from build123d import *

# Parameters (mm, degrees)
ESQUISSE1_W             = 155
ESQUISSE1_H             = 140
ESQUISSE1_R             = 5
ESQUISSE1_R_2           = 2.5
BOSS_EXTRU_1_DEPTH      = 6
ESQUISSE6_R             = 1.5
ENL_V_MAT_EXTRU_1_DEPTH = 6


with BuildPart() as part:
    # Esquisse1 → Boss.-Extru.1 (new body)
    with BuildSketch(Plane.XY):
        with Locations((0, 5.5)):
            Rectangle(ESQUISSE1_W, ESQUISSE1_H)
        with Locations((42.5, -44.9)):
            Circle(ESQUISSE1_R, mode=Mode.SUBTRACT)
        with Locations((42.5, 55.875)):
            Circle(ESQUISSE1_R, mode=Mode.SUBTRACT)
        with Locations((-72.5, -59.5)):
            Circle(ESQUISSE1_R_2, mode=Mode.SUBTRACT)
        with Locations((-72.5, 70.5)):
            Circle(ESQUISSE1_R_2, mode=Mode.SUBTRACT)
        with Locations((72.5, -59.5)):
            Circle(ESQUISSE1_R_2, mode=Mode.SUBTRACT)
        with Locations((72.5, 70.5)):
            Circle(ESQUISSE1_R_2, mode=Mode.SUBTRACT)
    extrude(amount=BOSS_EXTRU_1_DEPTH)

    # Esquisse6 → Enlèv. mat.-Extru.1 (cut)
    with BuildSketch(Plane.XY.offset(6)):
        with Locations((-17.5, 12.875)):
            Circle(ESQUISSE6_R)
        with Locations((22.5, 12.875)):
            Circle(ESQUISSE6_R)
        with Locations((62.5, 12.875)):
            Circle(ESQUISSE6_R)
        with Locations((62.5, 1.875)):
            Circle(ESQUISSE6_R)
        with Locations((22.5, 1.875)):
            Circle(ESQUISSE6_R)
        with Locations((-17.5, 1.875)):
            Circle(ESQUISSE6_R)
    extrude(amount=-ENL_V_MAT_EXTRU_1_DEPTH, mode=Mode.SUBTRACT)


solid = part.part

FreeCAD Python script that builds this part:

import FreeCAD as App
import Part
import Sketcher
from FreeCAD import Vector

doc = App.newDocument("Part")
body = doc.addObject("PartDesign::Body", "Body")

sketch1 = body.newObject("Sketcher::SketchObject", "Sketch")
sketch1.AttachmentSupport = (doc.getObject("XY_Plane"), [""])
sketch1.MapMode = "FlatFace"
sketch1.addGeometry([
    Part.LineSegment(Vector(-77.5, 75.5, 0), Vector(-77.5, -64.5, 0)),
    Part.LineSegment(Vector(-77.5, -64.5, 0), Vector(77.5, -64.5, 0)),
    Part.LineSegment(Vector(77.5, -64.5, 0), Vector(77.5, 75.5, 0)),
    Part.LineSegment(Vector(77.5, 75.5, 0), Vector(-77.5, 75.5, 0)),
    Part.Circle(Vector(-72.5, -59.5, 0), Vector(0, 0, 1), 2.5),
    Part.Circle(Vector(72.5, -59.5, 0), Vector(0, 0, 1), 2.5),
    Part.Circle(Vector(42.5, -44.9, 0), Vector(0, 0, 1), 5),
    Part.Circle(Vector(-72.5, 70.5, 0), Vector(0, 0, 1), 2.5),
    Part.Circle(Vector(42.5, 55.9, 0), Vector(0, 0, 1), 5),
    Part.Circle(Vector(72.5, 70.5, 0), Vector(0, 0, 1), 2.5),
], False)
sketch1.addConstraint([
    Sketcher.Constraint("Coincident", 0, 2, 1, 1),
    Sketcher.Constraint("Coincident", 1, 2, 2, 1),
    Sketcher.Constraint("Coincident", 2, 2, 3, 1),
    Sketcher.Constraint("Coincident", 3, 2, 0, 1),
    Sketcher.Constraint("Vertical", 0),
    Sketcher.Constraint("Horizontal", 1),
    Sketcher.Constraint("Vertical", 2),
    Sketcher.Constraint("Horizontal", 3),
    Sketcher.Constraint("Equal", 4, 5),
    Sketcher.Constraint("Equal", 5, 7),
    Sketcher.Constraint("Equal", 6, 8),
    Sketcher.Constraint("Equal", 7, 9),
    Sketcher.Constraint("Symmetric", 4, 3, 5, 3, -2),
    Sketcher.Constraint("Symmetric", 7, 3, 9, 3, -2),
    Sketcher.Constraint("Vertical", 4, 3, 7, 3),
    Sketcher.Constraint("Vertical", 6, 3, 8, 3),
    Sketcher.Constraint("Diameter", 4, 5.0),
    Sketcher.Constraint("Diameter", 6, 10.0),
    Sketcher.Constraint("DistanceX", 1, 1, 1, 2, 155.0),
    Sketcher.Constraint("DistanceY", 0, 2, 0, 1, 140.0),
    Sketcher.Constraint("DistanceX", 4, 3, 5, 3, 145.0),
    Sketcher.Constraint("DistanceX", 6, 3, 5, 3, 30.0),
    Sketcher.Constraint("DistanceY", 4, 3, 7, 3, 130.0),
    Sketcher.Constraint("DistanceX", 0, 2, 4, 3, 5.0),
    Sketcher.Constraint("DistanceY", 0, 2, 4, 3, 5.0),
    Sketcher.Constraint("DistanceY", 4, 3, -1, 1, 59.5),
    Sketcher.Constraint("DistanceY", 6, 3, -1, 1, 44.9),
    Sketcher.Constraint("DistanceY", -1, 1, 8, 3, 55.875),
])
pad1 = body.newObject("PartDesign::Pad", "Pad")
pad1.Profile = sketch1
pad1.Length = 6

sketch2 = body.newObject("Sketcher::SketchObject", "Sketch001")
sketch2.AttachmentSupport = (doc.getObject("XY_Plane"), [""])
sketch2.MapMode = "FlatFace"
sketch2.AttachmentOffset = App.Placement(Vector(0, 0, 6), App.Rotation())
sketch2.addGeometry([
    Part.Circle(Vector(-17.5, 12.9, 0), Vector(0, 0, 1), 1.5),
    Part.Circle(Vector(22.5, 12.9, 0), Vector(0, 0, 1), 1.5),
    Part.Circle(Vector(62.5, 12.9, 0), Vector(0, 0, 1), 1.5),
    Part.Circle(Vector(62.5, 1.9, 0), Vector(0, 0, 1), 1.5),
    Part.Circle(Vector(22.5, 1.9, 0), Vector(0, 0, 1), 1.5),
    Part.Circle(Vector(-17.5, 1.9, 0), Vector(0, 0, 1), 1.5),
], False)
sketch2.addConstraint([
    Sketcher.Constraint("Equal", 0, 1),
    Sketcher.Constraint("Equal", 1, 2),
    Sketcher.Constraint("Equal", 2, 3),
    Sketcher.Constraint("Equal", 3, 4),
    Sketcher.Constraint("Equal", 4, 5),
    Sketcher.Constraint("Horizontal", 0, 3, 1, 3),
    Sketcher.Constraint("Horizontal", 1, 3, 2, 3),
    Sketcher.Constraint("Horizontal", 3, 3, 4, 3),
    Sketcher.Constraint("Horizontal", 4, 3, 5, 3),
    Sketcher.Constraint("Vertical", 2, 3, 3, 3),
    Sketcher.Constraint("Vertical", 1, 3, 4, 3),
    Sketcher.Constraint("Vertical", 0, 3, 5, 3),
    Sketcher.Constraint("Diameter", 0, 3.0),
    Sketcher.Constraint("DistanceX", 0, 3, 1, 3, 40.0),
    Sketcher.Constraint("DistanceX", 1, 3, 2, 3, 40.0),
    Sketcher.Constraint("DistanceY", 3, 3, 2, 3, 11.0),
    Sketcher.Constraint("DistanceX", 0, 3, -1, 1, 17.5),
    Sketcher.Constraint("DistanceY", -1, 1, 0, 3, 12.875),
])
pocket1 = body.newObject("PartDesign::Pocket", "Pocket")
pocket1.Profile = sketch2
pocket1.Length = 6

doc.recompute()
